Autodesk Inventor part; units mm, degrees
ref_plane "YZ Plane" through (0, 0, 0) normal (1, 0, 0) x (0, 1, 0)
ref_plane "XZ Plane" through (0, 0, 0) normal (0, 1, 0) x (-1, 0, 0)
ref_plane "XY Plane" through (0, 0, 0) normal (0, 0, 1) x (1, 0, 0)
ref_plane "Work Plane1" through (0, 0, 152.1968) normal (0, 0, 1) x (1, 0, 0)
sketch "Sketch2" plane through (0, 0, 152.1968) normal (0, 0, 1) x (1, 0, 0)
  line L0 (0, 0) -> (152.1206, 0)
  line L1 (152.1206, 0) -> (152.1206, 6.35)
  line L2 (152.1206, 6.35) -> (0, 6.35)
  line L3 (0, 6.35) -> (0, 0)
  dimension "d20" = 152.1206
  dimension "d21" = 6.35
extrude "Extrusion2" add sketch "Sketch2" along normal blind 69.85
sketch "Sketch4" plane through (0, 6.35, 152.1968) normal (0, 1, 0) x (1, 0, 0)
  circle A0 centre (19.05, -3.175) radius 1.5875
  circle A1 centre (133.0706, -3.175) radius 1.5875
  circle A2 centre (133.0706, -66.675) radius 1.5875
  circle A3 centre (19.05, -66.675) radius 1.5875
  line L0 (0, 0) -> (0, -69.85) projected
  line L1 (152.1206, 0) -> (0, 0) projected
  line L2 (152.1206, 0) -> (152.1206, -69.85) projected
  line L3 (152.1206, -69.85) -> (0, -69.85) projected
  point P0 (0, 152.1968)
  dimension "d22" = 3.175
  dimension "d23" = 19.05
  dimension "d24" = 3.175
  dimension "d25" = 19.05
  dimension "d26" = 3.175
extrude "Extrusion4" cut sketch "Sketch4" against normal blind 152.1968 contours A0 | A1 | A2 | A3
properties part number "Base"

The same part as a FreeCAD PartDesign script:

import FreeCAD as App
import Part
import Sketcher

V = App.Vector
Q = App.Units.Quantity

doc = App.newDocument("Part")
body = doc.addObject("PartDesign::Body", "Body")

sketch1 = doc.addObject("Sketcher::SketchObject", "Sketch")
body.addObject(sketch1)
sketch1.AttachmentSupport = (doc.XY_Plane, [""])
sketch1.MapMode = "FlatFace"
sketch1.AttachmentOffset = App.Placement(V(0, 0, 5.992 * 25.4), App.Rotation())
sketch1.addGeometry([
    Part.LineSegment(V(0, 6, 0), V(0, 0, 0)),
    Part.LineSegment(V(0, 0, 0), V(152, 0, 0)),
    Part.LineSegment(V(152, 0, 0), V(152, 6, 0)),
    Part.LineSegment(V(152, 6, 0), V(0, 6, 0)),
], False)
sketch1.addConstraint([
    Sketcher.Constraint("Coincident", 0, 2, 1, 1),
    Sketcher.Constraint("Coincident", 1, 2, 2, 1),
    Sketcher.Constraint("Coincident", 2, 2, 3, 1),
    Sketcher.Constraint("Coincident", 3, 2, 0, 1),
    Sketcher.Constraint("Vertical", 0),
    Sketcher.Constraint("Horizontal", 1),
    Sketcher.Constraint("Vertical", 2),
    Sketcher.Constraint("Horizontal", 3),
    Sketcher.Constraint("Coincident", 0, 2, -1, 1),
    Sketcher.Constraint("DistanceY", 0, 2, 0, 1, Q("0.25 in")),
    Sketcher.Constraint("DistanceX", 1, 1, 1, 2, Q("5.989 in")),
])
pad1 = doc.addObject("PartDesign::Pad", "Pad")
body.addObject(pad1)
pad1.Profile = sketch1
pad1.Length = Q("2.75 in")

sketch2 = doc.addObject("Sketcher::SketchObject", "Sketch001")
body.addObject(sketch2)
sketch2.AttachmentSupport = (doc.XZ_Plane, [""])
sketch2.MapMode = "FlatFace"
sketch2.AttachmentOffset = App.Placement(V(0, 0, -0.25 * 25.4), App.Rotation())
sketch2.addGeometry([
    Part.Circle(V(19.1, 155.4, 0), V(0, 0, 1), 1.6),
    Part.Circle(V(133.1, 155.4, 0), V(0, 0, 1), 1.6),
    Part.Circle(V(133.1, 218.9, 0), V(0, 0, 1), 1.6),
    Part.Circle(V(19.1, 218.9, 0), V(0, 0, 1), 1.6),
], False)
sketch2.addConstraint([
    Sketcher.Constraint("Equal", 0, 1),
    Sketcher.Constraint("Equal", 1, 2),
    Sketcher.Constraint("Equal", 2, 3),
    Sketcher.Constraint("Horizontal", 0, 3, 1, 3),
    Sketcher.Constraint("Horizontal", 2, 3, 3, 3),
    Sketcher.Constraint("Vertical", 1, 3, 2, 3),
    Sketcher.Constraint("Vertical", 0, 3, 3, 3),
    Sketcher.Constraint("Diameter", 0, Q("0.125 in")),
    Sketcher.Constraint("DistanceX", -1, 1, 0, 3, Q("0.75 in")),
    Sketcher.Constraint("DistanceY", 1, 3, 2, 3, Q("2.5 in")),
    Sketcher.Constraint("DistanceY", -1, 1, 0, 3, Q("6.117 in")),
    Sketcher.Constraint("DistanceX", -1, 1, 1, 3, Q("5.239 in")),
])
pocket1 = doc.addObject("PartDesign::Pocket", "Pocket")
body.addObject(pocket1)
pocket1.Profile = sketch2
pocket1.Length = Q("5.992 in")
pocket1.Reversed = True

doc.recompute()
